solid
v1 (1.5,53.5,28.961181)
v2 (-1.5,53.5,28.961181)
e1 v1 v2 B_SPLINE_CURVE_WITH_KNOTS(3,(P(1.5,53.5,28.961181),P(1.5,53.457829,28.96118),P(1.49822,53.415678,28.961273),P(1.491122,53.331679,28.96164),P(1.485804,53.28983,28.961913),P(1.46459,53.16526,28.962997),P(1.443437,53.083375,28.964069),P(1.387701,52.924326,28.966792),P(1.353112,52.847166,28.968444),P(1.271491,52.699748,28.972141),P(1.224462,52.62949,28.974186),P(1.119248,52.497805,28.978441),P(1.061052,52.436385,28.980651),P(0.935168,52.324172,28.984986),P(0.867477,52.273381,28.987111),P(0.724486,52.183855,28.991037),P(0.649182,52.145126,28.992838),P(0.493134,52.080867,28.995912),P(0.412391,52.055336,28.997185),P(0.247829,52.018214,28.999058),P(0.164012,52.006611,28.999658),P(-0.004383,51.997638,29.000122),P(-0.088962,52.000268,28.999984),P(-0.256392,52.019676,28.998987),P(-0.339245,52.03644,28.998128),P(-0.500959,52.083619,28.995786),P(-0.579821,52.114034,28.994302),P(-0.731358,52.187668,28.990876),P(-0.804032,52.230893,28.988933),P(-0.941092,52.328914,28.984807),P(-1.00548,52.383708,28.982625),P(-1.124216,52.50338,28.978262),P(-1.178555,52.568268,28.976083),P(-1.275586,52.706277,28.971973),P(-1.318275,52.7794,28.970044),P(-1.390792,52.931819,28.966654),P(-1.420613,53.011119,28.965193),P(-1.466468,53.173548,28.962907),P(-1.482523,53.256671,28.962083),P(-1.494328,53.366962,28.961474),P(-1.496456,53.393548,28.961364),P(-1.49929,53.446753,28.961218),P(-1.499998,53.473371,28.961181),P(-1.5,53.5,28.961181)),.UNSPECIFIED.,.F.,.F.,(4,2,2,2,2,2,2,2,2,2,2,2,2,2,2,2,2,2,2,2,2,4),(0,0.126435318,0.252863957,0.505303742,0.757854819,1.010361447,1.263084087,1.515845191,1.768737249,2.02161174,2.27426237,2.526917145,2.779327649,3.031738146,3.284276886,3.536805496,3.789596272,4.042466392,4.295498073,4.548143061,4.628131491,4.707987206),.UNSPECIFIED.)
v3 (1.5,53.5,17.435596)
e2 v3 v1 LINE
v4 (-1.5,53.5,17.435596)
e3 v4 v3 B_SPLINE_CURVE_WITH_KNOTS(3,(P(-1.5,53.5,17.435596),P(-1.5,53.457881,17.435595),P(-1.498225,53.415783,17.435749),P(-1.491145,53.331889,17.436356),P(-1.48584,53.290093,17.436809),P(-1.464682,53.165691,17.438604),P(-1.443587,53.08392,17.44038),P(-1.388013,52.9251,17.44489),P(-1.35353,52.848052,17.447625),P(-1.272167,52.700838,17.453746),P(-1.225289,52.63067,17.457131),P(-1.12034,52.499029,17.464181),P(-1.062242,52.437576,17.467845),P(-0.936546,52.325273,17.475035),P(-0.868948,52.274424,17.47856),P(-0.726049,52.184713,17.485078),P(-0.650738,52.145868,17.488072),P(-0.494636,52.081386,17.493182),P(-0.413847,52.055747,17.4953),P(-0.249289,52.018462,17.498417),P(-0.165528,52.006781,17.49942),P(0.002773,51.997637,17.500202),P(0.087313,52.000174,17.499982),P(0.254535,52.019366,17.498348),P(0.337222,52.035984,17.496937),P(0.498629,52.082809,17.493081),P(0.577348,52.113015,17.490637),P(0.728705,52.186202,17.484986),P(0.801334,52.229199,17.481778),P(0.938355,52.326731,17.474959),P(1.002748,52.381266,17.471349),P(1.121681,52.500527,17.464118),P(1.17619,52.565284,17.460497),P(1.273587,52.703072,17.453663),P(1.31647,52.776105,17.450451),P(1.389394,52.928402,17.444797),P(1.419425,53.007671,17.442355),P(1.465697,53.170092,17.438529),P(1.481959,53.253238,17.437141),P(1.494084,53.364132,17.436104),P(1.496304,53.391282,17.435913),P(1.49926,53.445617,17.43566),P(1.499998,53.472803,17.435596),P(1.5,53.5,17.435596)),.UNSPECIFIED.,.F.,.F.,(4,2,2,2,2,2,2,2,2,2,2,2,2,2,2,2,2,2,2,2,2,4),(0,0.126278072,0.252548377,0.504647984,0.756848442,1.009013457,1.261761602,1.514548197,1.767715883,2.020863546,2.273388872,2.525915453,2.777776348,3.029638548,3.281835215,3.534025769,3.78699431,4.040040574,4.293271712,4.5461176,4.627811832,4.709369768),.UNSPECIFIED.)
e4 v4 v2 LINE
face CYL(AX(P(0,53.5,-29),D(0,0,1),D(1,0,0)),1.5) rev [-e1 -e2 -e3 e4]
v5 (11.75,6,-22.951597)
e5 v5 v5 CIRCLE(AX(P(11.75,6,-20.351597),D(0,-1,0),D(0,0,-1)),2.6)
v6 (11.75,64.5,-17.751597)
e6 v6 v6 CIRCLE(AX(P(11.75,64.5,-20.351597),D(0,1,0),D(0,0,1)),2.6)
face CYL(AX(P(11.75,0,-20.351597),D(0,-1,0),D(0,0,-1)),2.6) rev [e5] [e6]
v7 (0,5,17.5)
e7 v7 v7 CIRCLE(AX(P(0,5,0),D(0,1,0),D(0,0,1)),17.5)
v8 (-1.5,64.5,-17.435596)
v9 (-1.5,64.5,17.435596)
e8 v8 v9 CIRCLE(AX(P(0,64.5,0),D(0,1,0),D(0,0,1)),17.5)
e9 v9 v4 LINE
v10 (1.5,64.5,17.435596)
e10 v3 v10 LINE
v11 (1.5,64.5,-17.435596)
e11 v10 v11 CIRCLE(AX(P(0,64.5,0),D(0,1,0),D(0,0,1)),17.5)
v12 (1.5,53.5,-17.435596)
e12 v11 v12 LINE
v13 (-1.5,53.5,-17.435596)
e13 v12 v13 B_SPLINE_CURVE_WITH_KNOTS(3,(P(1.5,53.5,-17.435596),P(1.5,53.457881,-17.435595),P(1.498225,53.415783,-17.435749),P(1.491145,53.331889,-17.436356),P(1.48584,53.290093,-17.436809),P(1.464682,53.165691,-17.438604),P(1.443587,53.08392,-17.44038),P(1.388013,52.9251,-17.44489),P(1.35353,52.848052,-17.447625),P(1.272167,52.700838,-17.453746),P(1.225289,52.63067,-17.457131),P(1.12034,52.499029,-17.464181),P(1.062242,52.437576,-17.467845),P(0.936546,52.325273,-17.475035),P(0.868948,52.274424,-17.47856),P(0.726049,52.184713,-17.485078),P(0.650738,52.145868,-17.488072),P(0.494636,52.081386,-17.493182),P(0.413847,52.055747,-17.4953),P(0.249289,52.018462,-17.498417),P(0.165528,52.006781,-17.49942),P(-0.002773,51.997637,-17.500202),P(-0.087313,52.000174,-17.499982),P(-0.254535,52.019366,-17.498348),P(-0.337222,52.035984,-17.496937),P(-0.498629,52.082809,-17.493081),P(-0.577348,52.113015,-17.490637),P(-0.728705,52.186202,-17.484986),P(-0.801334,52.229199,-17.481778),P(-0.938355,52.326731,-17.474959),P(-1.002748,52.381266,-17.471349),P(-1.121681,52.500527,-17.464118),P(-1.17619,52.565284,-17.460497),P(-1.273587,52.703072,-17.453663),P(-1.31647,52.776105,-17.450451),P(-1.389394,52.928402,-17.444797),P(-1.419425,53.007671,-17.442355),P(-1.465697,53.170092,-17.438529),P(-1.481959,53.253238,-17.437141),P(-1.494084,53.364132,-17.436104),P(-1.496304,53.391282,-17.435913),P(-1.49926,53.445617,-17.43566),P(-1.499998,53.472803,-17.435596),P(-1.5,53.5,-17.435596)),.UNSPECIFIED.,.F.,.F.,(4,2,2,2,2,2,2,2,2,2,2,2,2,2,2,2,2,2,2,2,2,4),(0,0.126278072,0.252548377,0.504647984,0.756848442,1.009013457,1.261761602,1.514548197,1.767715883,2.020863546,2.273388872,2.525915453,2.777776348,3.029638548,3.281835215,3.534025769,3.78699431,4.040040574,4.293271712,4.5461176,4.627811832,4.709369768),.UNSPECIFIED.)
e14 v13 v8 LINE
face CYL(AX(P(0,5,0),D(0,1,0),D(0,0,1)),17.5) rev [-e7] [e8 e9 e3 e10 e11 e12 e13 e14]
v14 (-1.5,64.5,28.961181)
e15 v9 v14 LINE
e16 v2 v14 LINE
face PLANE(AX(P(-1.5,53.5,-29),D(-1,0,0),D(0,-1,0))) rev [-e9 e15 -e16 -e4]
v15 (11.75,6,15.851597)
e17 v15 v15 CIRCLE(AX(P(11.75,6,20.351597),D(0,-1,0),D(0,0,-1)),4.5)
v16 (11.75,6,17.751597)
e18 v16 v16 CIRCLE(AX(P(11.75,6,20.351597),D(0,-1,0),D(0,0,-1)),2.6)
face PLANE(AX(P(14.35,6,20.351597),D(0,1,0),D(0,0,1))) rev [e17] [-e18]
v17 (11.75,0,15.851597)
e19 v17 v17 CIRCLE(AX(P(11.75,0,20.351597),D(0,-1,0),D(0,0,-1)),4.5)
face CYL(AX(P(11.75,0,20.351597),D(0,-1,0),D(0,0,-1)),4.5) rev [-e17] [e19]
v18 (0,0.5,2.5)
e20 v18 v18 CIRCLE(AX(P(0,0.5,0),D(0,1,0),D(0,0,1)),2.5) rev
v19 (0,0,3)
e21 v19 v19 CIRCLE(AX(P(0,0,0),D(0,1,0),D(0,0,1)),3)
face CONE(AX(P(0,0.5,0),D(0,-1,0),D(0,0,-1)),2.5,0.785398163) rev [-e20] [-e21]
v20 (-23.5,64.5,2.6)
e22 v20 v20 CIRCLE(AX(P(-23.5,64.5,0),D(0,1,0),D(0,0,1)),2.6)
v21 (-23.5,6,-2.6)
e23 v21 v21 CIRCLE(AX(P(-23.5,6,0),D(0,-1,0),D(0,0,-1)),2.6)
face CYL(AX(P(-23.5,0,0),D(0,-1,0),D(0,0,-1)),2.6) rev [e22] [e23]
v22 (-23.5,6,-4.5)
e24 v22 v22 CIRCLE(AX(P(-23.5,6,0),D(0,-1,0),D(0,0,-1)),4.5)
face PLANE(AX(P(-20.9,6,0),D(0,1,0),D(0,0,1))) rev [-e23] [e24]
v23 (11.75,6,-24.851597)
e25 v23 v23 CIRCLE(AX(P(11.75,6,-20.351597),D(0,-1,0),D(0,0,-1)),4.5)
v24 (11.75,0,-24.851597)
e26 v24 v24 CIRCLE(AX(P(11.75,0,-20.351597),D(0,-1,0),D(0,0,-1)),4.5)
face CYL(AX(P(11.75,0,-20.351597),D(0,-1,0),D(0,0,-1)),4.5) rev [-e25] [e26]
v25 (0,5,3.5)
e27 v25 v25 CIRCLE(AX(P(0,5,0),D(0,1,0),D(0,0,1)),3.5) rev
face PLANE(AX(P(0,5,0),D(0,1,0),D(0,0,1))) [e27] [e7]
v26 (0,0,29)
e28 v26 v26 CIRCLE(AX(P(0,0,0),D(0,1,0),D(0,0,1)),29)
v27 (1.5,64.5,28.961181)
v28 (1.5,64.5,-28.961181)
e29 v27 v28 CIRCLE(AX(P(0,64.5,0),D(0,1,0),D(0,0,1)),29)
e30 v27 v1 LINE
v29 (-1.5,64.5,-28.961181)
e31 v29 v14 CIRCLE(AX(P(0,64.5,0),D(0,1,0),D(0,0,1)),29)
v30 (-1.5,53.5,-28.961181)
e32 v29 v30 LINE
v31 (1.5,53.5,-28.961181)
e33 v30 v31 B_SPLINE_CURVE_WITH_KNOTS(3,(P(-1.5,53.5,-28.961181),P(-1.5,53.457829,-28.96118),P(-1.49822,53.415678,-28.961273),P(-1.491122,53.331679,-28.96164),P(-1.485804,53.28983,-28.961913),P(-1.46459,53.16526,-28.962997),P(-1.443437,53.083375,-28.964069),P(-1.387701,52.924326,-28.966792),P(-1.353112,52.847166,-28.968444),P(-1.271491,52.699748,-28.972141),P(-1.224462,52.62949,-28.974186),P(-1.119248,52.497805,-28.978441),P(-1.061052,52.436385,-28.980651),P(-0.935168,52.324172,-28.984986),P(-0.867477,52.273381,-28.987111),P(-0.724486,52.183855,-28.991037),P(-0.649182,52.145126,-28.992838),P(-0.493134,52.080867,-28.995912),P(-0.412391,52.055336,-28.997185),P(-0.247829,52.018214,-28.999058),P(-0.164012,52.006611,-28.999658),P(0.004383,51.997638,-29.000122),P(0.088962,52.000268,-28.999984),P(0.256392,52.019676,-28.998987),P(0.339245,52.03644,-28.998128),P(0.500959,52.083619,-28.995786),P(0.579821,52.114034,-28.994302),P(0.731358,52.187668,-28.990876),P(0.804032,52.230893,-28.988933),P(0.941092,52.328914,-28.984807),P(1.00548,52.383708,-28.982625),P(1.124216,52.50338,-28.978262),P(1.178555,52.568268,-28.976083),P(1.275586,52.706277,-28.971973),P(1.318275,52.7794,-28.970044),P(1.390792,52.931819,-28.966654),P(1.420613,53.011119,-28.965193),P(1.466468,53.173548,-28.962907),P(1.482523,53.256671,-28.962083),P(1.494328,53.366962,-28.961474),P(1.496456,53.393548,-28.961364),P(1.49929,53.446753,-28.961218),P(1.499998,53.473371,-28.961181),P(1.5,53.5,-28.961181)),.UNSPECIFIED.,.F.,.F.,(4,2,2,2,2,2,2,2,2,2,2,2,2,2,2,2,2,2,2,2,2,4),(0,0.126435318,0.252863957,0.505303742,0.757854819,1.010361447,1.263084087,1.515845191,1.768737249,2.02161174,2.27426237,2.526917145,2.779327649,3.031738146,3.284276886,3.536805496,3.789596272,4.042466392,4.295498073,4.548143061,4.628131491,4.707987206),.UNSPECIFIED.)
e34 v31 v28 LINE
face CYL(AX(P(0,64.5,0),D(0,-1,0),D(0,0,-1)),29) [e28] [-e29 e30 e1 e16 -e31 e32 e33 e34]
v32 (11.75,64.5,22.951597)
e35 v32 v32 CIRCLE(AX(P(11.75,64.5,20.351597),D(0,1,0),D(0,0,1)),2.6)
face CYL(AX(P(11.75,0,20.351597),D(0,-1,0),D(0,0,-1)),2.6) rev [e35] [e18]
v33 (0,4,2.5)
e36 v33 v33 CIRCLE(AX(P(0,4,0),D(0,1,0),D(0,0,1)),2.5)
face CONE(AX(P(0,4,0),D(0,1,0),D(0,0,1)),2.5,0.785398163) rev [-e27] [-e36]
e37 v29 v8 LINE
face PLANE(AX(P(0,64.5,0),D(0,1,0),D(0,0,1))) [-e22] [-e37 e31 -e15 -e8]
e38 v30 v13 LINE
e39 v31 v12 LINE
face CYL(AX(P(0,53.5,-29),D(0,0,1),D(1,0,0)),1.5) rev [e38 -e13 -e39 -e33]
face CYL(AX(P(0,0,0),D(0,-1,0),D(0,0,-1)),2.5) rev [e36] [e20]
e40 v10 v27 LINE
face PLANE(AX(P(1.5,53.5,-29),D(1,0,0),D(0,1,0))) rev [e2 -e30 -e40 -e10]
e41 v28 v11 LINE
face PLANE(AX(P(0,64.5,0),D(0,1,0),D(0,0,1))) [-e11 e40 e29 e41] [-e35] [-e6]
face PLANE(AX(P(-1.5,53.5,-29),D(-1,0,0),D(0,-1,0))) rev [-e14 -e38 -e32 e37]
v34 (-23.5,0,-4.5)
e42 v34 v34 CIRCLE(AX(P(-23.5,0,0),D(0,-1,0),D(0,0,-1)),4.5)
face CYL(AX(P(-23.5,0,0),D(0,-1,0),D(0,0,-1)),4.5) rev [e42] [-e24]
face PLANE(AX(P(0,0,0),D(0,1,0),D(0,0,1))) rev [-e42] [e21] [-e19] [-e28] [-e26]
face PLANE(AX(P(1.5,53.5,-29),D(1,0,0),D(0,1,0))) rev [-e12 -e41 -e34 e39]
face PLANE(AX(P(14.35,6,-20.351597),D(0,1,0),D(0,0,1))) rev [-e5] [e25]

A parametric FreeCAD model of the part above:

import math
import FreeCAD as App
import Part
import Sketcher


def edges_at(feature, points):
    """Names of the edges that pass closest to the given points."""
    edges = feature.Shape.Edges
    near = lambda p: min(range(len(edges)), key=lambda i: edges[i].distToShape(Part.Vertex(*p))[0])
    return sorted({f"Edge{near(p) + 1}" for p in points})

doc = App.newDocument("Part")
body = doc.addObject("PartDesign::Body", "Body")

sketch1 = body.newObject("Sketcher::SketchObject", "Sketch")
sketch1.AttachmentSupport = (doc.getObject("XZ_Plane"), [""])
sketch1.MapMode = "FlatFace"
sketch1.addGeometry(Part.Circle(App.Vector(0, 0, 0), App.Vector(0, 0, 1), 29), False)
sketch1.addConstraint([
    Sketcher.Constraint("Coincident", 0, 3, -1, 1),
    Sketcher.Constraint("Diameter", 0, 58.0),
])
pad1 = body.newObject("PartDesign::Pad", "Pad")
pad1.Profile = sketch1
pad1.Length = 64.5
pad1.Reversed = True

sketch2 = body.newObject("Sketcher::SketchObject", "Sketch001")
sketch2.AttachmentSupport = (doc.getObject("XZ_Plane"), [""])
sketch2.MapMode = "FlatFace"
sketch2.AttachmentOffset = App.Placement(App.Vector(0, 0, -64.5), App.Rotation())
sketch2.addGeometry(Part.Circle(App.Vector(0, 0, 0), App.Vector(0, 0, 1), 18), False)
sketch2.addConstraint([
    Sketcher.Constraint("Coincident", 0, 3, -1, 1),
    Sketcher.Constraint("Diameter", 0, 35.0),
])
pocket1 = body.newObject("PartDesign::Pocket", "Pocket")
pocket1.Profile = sketch2
pocket1.Length = 59.5
pocket1.Reversed = True

sketch3 = body.newObject("Sketcher::SketchObject", "Sketch002")
sketch3.AttachmentSupport = (doc.getObject("XZ_Plane"), [""])
sketch3.MapMode = "FlatFace"
sketch3.addGeometry(Part.Circle(App.Vector(0, 0, 0), App.Vector(0, 0, 1), 2.5), False)
sketch3.addConstraint([
    Sketcher.Constraint("Coincident", 0, 3, -1, 1),
    Sketcher.Constraint("Diameter", 0, 5.0),
])
doc.recompute()
hole = body.newObject("PartDesign::Hole", "Hole")
hole.Profile = sketch3
hole.ThreadType = "None"
hole.Diameter = 5
hole.DepthType = "Dimension"
hole.Depth = 6
hole.DrillPoint = "Angled"
hole.DrillPointAngle = 140
doc.recompute()

chamfer = body.newObject("PartDesign::Chamfer", "Chamfer")
chamfer.Base = (hole, edges_at(hole, [(-2.5, 0, 0)]))
chamfer.Size = 0.5
doc.recompute()

chamfer2 = body.newObject("PartDesign::Chamfer", "Chamfer001")
chamfer2.Base = (chamfer, edges_at(chamfer, [(-2.5, 5, 0)]))
chamfer2.Size = 1

sketch4 = body.newObject("Sketcher::SketchObject", "Sketch003")
sketch4.AttachmentSupport = (doc.getObject("XY_Plane"), [""])
sketch4.MapMode = "FlatFace"
sketch4.AttachmentOffset = App.Placement(App.Vector(0, 0, 29), App.Rotation())
sketch4.addGeometry([
    Part.LineSegment(App.Vector(-1.5, 55.5, 0), App.Vector(-1.5, 53.5, 0)),
    Part.ArcOfCircle(Part.Circle(App.Vector(0, 53.5, 0), App.Vector(0, 0, 1), 1.5), math.radians(180), math.radians(360)),
    Part.LineSegment(App.Vector(1.5, 53.5, 0), App.Vector(1.5, 55.5, 0)),
    Part.ArcOfCircle(Part.Circle(App.Vector(0, 55.5, 0), App.Vector(0, 0, 1), 1.5), math.radians(0), math.radians(180)),
], False)
sketch4.addConstraint([
    Sketcher.Constraint("Tangent", 0, 2, 1, 1),
    Sketcher.Constraint("Tangent", 1, 2, 2, 1),
    Sketcher.Constraint("Tangent", 2, 2, 3, 1),
    Sketcher.Constraint("Tangent", 3, 2, 0, 1),
    Sketcher.Constraint("Vertical", 0),
    Sketcher.Constraint("Vertical", 2),
    Sketcher.Constraint("PointOnObject", 1, 3, -2),
    Sketcher.Constraint("Radius", 1, 1.5),
    Sketcher.Constraint("DistanceY", 0, 2, 0, 1, 2.0),
    Sketcher.Constraint("DistanceY", -1, 1, 1, 3, 53.5),
])
pocket2 = body.newObject("PartDesign::Pocket", "Pocket001")
pocket2.Profile = sketch4
pocket2.Type = "ThroughAll"

sketch5 = body.newObject("Sketcher::SketchObject", "Sketch004")
sketch5.AttachmentSupport = (doc.getObject("XY_Plane"), [""])
sketch5.MapMode = "FlatFace"
sketch5.AttachmentOffset = App.Placement(App.Vector(0, 0, 29), App.Rotation())
sketch5.addGeometry([
    Part.LineSegment(App.Vector(-1.5, 64.5, 0), App.Vector(-1.5, 54.5, 0)),
    Part.LineSegment(App.Vector(-1.5, 54.5, 0), App.Vector(1.5, 54.5, 0)),
    Part.LineSegment(App.Vector(1.5, 54.5, 0), App.Vector(1.5, 64.5, 0)),
    Part.LineSegment(App.Vector(1.5, 64.5, 0), App.Vector(-1.5, 64.5, 0)),
], False)
sketch5.addConstraint([
    Sketcher.Constraint("Coincident", 0, 2, 1, 1),
    Sketcher.Constraint("Coincident", 1, 2, 2, 1),
    Sketcher.Constraint("Coincident", 2, 2, 3, 1),
    Sketcher.Constraint("Coincident", 3, 2, 0, 1),
    Sketcher.Constraint("Vertical", 0),
    Sketcher.Constraint("Horizontal", 1),
    Sketcher.Constraint("Vertical", 2),
    Sketcher.Constraint("Horizontal", 3),
    Sketcher.Constraint("DistanceX", 1, 1, 1, 2, 3.0),
    Sketcher.Constraint("DistanceY", 0, 2, 0, 1, 10.0),
    Sketcher.Constraint("DistanceX", 0, 2, -1, 1, 1.5),
    Sketcher.Constraint("DistanceY", -1, 1, 0, 2, 54.5),
])
pocket3 = body.newObject("PartDesign::Pocket", "Pocket002")
pocket3.Profile = sketch5
pocket3.Type = "ThroughAll"

sketch6 = body.newObject("Sketcher::SketchObject", "Sketch005")
sketch6.AttachmentSupport = (doc.getObject("XZ_Plane"), [""])
sketch6.MapMode = "FlatFace"
sketch6.addGeometry([
    Part.Circle(App.Vector(11.8, 20.4, 0), App.Vector(0, 0, 1), 2.6),
    Part.Circle(App.Vector(11.8, -20.4, 0), App.Vector(0, 0, 1), 2.6),
    Part.Circle(App.Vector(-23.5, 0, 0), App.Vector(0, 0, 1), 2.6),
], False)
sketch6.addConstraint([
    Sketcher.Constraint("Equal", 0, 1),
    Sketcher.Constraint("Equal", 1, 2),
    Sketcher.Constraint("Symmetric", 0, 3, 1, 3, -1),
    Sketcher.Constraint("PointOnObject", 2, 3, -1),
    Sketcher.Constraint("Diameter", 0, 5.2),
    Sketcher.Constraint("DistanceX", 2, 3, -1, 1, 23.5),
    Sketcher.Constraint("DistanceX", -1, 1, 0, 3, 11.75),
    Sketcher.Constraint("DistanceY", -1, 1, 0, 3, 20.351597),
])
doc.recompute()
hole2 = body.newObject("PartDesign::Hole", "Hole001")
hole2.Profile = sketch6
hole2.ThreadType = "None"
hole2.Diameter = 5.2
hole2.DepthType = "Dimension"
hole2.Depth = 87.053677
hole2.DrillPoint = "Angled"
hole2.DrillPointAngle = 140
hole2.HoleCutType = "Counterbore"
hole2.HoleCutDiameter = 9
hole2.HoleCutDepth = 6

doc.recompute()
